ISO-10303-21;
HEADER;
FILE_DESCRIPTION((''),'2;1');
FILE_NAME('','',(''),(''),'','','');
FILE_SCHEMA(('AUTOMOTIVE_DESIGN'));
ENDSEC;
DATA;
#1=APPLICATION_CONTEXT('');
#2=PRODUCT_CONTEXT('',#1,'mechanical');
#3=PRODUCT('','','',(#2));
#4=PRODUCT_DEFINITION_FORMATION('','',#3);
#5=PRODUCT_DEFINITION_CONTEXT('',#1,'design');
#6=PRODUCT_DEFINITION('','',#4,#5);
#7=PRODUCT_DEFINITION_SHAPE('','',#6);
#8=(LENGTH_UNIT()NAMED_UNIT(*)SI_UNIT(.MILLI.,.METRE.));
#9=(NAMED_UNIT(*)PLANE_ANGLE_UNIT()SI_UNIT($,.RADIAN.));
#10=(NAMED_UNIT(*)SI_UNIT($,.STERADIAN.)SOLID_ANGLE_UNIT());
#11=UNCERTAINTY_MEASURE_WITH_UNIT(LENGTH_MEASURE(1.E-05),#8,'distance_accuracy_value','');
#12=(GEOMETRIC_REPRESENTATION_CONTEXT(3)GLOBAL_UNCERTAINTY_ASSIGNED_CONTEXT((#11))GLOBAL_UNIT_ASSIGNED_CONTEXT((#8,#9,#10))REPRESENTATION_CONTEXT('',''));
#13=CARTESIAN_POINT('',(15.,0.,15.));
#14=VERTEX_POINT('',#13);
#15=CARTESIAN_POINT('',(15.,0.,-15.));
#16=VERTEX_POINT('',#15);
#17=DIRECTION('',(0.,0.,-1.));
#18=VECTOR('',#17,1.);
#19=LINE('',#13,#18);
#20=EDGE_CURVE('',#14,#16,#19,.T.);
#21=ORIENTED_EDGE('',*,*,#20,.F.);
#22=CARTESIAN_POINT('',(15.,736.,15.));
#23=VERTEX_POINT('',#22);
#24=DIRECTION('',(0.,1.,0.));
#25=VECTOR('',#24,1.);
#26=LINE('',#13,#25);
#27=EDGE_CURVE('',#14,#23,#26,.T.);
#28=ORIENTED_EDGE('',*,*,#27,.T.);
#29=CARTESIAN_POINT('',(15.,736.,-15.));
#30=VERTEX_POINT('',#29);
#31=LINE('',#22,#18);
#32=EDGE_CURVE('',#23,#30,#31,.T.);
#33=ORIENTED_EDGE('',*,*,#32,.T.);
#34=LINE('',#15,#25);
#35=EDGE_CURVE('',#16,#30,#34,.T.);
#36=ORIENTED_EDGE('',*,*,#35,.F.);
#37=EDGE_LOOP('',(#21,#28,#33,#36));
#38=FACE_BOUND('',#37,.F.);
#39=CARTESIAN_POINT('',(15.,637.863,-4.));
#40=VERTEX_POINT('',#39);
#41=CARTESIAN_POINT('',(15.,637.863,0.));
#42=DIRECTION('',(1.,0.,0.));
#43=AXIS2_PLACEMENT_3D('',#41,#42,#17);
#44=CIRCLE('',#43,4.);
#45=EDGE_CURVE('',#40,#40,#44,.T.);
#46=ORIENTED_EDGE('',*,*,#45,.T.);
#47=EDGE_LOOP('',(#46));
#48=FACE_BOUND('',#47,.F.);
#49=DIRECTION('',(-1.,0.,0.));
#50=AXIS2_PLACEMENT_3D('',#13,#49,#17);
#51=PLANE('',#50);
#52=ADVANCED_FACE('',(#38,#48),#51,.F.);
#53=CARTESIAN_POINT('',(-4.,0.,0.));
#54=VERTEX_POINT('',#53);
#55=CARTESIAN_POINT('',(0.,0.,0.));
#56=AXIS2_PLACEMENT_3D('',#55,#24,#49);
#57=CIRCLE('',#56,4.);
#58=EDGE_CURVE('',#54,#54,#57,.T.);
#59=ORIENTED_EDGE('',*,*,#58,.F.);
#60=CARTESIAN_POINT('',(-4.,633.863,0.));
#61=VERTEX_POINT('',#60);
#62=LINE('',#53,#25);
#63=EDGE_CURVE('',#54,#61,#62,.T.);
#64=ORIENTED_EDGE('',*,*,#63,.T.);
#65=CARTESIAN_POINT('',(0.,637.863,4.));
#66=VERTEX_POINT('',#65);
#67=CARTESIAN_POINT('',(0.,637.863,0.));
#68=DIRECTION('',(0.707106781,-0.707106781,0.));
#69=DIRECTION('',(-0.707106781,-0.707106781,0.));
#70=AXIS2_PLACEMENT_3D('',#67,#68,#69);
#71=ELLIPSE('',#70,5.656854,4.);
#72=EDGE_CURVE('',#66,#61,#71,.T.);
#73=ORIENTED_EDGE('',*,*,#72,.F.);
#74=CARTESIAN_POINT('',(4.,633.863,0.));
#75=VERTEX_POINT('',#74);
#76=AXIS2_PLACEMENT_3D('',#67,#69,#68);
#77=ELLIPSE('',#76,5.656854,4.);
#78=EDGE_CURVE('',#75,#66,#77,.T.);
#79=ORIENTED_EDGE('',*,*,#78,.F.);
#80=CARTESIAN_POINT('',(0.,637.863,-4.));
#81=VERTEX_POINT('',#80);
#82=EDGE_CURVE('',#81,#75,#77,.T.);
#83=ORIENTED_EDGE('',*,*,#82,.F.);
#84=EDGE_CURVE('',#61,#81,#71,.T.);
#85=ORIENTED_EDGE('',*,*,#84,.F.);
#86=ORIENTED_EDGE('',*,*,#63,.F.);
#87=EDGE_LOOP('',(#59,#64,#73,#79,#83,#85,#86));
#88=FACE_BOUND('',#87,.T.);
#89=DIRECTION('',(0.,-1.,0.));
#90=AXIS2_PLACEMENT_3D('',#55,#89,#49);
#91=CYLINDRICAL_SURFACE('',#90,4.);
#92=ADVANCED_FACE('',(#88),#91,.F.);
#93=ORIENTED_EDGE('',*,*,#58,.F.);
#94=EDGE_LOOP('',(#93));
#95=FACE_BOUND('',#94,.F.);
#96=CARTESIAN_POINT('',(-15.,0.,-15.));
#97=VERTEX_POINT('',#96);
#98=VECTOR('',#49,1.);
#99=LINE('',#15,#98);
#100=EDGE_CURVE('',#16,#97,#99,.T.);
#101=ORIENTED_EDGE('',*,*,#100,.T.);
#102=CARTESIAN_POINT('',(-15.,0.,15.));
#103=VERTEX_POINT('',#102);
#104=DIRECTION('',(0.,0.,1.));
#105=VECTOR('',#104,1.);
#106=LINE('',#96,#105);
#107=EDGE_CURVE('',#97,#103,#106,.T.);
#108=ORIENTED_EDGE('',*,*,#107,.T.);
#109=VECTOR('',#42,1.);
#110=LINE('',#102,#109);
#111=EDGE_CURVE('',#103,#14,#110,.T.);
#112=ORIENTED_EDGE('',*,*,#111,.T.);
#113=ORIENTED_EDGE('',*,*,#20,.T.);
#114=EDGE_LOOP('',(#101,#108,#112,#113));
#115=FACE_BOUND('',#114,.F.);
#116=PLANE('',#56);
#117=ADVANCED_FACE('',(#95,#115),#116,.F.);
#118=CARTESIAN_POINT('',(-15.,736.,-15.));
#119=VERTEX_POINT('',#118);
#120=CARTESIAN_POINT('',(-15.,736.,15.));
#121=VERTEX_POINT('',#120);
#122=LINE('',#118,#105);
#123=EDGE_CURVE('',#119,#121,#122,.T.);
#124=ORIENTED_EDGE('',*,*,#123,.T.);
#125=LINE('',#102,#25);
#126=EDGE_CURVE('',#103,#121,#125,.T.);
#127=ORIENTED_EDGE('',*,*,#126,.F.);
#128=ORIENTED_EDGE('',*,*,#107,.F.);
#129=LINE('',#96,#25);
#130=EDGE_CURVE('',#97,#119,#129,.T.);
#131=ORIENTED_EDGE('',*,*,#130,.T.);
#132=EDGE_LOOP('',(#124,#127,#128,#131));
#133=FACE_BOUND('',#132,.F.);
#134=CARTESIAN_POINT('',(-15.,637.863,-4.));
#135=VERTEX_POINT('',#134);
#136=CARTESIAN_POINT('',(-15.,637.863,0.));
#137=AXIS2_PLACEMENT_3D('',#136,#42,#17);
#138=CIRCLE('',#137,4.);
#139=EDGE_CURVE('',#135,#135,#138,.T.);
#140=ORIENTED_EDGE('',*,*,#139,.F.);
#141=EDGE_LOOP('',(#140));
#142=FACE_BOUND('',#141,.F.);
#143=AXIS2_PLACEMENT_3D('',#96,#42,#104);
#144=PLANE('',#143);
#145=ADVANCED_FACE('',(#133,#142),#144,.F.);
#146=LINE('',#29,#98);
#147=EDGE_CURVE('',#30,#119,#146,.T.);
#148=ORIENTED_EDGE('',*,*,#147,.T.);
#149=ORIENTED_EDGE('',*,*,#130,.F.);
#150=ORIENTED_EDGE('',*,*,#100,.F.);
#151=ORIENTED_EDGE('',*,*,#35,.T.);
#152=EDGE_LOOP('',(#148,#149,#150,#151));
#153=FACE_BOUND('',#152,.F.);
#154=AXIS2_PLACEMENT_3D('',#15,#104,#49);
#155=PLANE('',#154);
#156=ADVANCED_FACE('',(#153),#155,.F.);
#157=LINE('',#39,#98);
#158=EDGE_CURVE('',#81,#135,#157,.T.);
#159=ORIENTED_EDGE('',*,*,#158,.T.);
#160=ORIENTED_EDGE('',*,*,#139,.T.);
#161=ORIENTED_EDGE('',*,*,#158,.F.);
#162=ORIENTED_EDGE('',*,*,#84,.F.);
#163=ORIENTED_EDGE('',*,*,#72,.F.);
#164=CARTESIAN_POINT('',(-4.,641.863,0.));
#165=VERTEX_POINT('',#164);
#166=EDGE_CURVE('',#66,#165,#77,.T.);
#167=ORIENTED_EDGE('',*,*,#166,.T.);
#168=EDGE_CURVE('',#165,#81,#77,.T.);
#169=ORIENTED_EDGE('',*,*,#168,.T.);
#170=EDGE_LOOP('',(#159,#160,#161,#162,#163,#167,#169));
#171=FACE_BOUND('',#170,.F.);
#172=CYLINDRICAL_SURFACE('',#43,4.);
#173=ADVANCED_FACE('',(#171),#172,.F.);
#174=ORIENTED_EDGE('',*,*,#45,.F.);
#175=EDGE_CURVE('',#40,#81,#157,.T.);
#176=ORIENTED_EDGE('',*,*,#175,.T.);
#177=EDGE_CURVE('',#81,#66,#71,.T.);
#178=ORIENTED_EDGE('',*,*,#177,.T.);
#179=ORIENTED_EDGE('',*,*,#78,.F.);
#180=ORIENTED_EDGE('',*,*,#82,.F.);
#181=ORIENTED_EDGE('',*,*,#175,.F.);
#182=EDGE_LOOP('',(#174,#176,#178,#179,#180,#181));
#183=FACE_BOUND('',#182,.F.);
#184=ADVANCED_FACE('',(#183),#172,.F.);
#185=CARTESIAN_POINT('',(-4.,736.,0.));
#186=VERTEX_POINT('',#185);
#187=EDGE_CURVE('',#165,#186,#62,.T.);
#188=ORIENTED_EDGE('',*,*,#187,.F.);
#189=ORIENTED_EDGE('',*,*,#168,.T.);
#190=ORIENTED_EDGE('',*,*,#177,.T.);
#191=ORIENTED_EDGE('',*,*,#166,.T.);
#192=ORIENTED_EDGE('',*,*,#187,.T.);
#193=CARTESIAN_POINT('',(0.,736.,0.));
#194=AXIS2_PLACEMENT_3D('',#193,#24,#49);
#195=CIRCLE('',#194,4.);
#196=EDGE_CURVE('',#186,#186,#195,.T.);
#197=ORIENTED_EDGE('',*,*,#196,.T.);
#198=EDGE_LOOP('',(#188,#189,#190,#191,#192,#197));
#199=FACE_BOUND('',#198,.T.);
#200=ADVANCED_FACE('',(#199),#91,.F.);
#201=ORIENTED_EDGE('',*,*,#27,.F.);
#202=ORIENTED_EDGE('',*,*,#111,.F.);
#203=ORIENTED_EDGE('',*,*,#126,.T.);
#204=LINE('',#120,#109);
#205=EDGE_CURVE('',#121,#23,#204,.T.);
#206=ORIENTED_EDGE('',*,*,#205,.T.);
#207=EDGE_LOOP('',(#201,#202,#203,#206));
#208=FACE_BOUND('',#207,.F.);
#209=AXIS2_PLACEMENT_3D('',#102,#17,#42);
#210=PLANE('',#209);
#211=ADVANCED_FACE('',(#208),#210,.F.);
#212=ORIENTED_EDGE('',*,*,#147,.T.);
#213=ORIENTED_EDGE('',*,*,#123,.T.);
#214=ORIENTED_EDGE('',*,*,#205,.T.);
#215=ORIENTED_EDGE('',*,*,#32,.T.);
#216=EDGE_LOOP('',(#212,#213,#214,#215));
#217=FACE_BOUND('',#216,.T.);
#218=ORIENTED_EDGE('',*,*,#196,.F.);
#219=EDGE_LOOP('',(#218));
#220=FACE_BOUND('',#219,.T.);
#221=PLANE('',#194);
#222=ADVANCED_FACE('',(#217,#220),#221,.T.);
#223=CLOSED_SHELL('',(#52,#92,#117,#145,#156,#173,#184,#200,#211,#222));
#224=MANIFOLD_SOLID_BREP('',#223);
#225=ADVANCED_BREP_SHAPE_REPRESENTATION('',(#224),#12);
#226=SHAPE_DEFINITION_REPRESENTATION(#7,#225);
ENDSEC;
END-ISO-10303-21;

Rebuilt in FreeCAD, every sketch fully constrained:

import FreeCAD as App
import Part
import Sketcher
Q = App.Units.Quantity


def add_polygon(sketch, points):
    """Adds a closed chain of lines whose ends are joined by coincident constraints."""
    first, n = sketch.GeometryCount, len(points)
    for a, b in zip(points, points[1:] + points[:1]):
        sketch.addGeometry(Part.LineSegment(App.Vector(*a, 0), App.Vector(*b, 0)), False)
    for i in range(n):
        sketch.addConstraint(Sketcher.Constraint("Coincident", first + i, 2, first + (i + 1) % n, 1))

doc = App.newDocument("Part")
params = doc.addObject("Spreadsheet::Sheet", "Params")
for row, (alias, value) in enumerate([
    ("sketch1_diameter", "8 mm"),
    ("sketch1_width", "30 mm"),
    ("pad1_length", "736 mm"),
    ("sketch2_diameter", "8 mm"),
    ("pocket1_length", "30 mm"),
], start=1):
    params.set(f"A{row}", alias)
    params.set(f"B{row}", "=" + value)
    params.setAlias(f"B{row}", alias)

body = doc.addObject("PartDesign::Body", "Body")

# Sketch on XZ plane
sketch1 = doc.addObject("Sketcher::SketchObject", "Sketch")
body.addObject(sketch1)
sketch1.AttachmentSupport = (doc.XZ_Plane, [""])
sketch1.MapMode = "FlatFace"
add_polygon(sketch1, [(-15, -15), (-15, 15), (15, 15), (15, -15)])  # lines 0-3
sketch1.addGeometry(Part.Circle(App.Vector(0, 0, 0), App.Vector(0, 0, 1), 4), False)  # 4
sketch1.addConstraint([
    Sketcher.Constraint("Vertical", 0),
    Sketcher.Constraint("Horizontal", 1),
    Sketcher.Constraint("Vertical", 2),
    Sketcher.Constraint("Horizontal", 3),
    Sketcher.Constraint("Coincident", 4, 3, -1, 1),
    Sketcher.Constraint("Symmetric", 0, 2, 2, 2, -1, 1),
    Sketcher.Constraint("Equal", 3, 0),
    Sketcher.Constraint("Diameter", 4, Q("8 mm")),
    Sketcher.Constraint("DistanceX", 1, 1, 1, 2, Q("30 mm")),
])
sketch1.setExpression("Constraints[11]", "Params.sketch1_diameter")
sketch1.setExpression("Constraints[12]", "Params.sketch1_width")
pad1 = doc.addObject("PartDesign::Pad", "Pad")
body.addObject(pad1)
pad1.Profile = sketch1
pad1.setExpression("Length", "Params.pad1_length")
pad1.Reversed = True

# Sketch on YZ plane
sketch2 = doc.addObject("Sketcher::SketchObject", "Sketch001")
body.addObject(sketch2)
sketch2.AttachmentSupport = (doc.YZ_Plane, [""])
sketch2.MapMode = "FlatFace"
sketch2.AttachmentOffset = App.Placement(App.Vector(0, 0, 15), App.Rotation())
sketch2.addGeometry(Part.Circle(App.Vector(637.863, 0, 0), App.Vector(0, 0, 1), 4), False)
sketch2.addConstraint([
    Sketcher.Constraint("PointOnObject", 0, 3, -1),
    Sketcher.Constraint("Diameter", 0, Q("8 mm")),
    Sketcher.Constraint("DistanceX", -1, 1, 0, 3, Q("637.863 mm")),
])
sketch2.setExpression("Constraints[1]", "Params.sketch2_diameter")
pocket1 = doc.addObject("PartDesign::Pocket", "Pocket")
body.addObject(pocket1)
pocket1.Profile = sketch2
pocket1.setExpression("Length", "Params.pocket1_length")

doc.recompute()
